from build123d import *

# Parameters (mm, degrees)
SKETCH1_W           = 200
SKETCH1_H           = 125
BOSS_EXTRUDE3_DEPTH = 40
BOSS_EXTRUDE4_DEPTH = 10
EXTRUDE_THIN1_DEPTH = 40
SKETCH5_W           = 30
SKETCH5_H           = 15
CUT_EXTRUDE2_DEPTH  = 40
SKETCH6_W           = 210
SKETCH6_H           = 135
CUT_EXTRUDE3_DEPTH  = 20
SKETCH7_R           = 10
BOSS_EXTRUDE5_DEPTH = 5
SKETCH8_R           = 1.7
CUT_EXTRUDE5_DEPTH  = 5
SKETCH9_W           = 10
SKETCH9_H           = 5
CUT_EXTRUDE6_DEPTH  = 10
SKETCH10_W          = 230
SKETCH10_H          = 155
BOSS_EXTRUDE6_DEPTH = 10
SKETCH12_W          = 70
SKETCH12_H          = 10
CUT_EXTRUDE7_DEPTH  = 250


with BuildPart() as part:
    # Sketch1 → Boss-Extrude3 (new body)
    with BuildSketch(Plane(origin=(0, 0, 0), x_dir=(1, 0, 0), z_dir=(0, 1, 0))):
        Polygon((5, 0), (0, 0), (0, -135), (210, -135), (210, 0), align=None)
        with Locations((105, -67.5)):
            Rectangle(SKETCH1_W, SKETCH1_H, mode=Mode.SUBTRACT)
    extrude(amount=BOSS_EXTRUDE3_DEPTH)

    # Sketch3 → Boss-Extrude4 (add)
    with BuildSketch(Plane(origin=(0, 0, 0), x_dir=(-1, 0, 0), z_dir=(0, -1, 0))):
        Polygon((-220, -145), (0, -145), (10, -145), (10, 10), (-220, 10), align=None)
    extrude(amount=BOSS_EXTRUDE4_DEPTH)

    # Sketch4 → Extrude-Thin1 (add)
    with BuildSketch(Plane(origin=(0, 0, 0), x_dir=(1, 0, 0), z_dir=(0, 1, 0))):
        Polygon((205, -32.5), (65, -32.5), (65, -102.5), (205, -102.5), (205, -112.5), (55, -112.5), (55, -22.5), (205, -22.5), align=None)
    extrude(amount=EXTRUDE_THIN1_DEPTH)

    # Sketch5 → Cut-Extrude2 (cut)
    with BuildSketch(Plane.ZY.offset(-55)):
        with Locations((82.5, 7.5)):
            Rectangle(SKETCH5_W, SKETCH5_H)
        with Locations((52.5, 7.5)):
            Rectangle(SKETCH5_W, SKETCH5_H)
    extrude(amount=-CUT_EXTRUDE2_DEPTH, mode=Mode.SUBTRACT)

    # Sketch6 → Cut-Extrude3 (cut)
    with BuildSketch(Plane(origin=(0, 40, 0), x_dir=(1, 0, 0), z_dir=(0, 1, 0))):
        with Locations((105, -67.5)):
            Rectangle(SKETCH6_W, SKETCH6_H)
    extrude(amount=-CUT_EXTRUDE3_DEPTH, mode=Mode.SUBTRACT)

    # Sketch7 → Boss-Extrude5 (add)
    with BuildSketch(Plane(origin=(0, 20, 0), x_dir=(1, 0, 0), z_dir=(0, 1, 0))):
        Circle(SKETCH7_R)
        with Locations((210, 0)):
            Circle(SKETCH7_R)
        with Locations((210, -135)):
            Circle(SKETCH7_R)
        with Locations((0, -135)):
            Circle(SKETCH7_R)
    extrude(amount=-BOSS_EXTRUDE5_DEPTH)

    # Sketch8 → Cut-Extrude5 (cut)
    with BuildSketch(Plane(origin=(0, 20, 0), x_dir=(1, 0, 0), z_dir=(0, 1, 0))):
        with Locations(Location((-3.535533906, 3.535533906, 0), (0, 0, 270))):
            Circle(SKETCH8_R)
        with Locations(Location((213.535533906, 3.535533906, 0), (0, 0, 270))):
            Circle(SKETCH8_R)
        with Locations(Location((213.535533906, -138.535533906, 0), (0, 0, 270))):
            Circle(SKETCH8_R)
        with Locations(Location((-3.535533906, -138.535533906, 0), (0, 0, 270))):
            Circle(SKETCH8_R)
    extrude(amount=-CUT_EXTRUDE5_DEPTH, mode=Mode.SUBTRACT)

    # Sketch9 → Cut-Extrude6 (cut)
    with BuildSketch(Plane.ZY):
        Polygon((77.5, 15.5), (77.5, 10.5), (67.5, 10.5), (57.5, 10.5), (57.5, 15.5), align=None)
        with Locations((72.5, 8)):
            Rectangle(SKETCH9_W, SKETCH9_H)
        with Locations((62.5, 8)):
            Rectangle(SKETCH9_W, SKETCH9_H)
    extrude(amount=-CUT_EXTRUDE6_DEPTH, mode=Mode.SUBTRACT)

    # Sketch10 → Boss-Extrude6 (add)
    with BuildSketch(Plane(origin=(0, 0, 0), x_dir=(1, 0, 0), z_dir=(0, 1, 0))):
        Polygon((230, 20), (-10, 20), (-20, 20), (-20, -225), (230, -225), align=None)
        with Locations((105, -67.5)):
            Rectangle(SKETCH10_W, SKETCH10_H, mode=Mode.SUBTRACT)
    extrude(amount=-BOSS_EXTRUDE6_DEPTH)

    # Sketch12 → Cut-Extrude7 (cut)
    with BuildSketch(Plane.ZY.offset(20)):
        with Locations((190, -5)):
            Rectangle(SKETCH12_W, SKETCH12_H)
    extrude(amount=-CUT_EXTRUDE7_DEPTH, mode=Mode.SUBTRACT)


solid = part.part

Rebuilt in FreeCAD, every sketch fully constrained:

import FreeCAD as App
import Part
import Sketcher
Q = App.Units.Quantity

doc = App.newDocument("Part")
body = doc.addObject("PartDesign::Body", "Body")

# Sketch on XZ plane
sketch1 = body.newObject("Sketcher::SketchObject", "Sketch")
sketch1.AttachmentSupport = (doc.getObject("XZ_Plane"), [""])
sketch1.MapMode = "FlatFace"
sketch1.addGeometry(Part.LineSegment(App.Vector(0, 0, 0), App.Vector(0, 135, 0)), False)
sketch1.addGeometry(Part.LineSegment(App.Vector(0, 135, 0), App.Vector(210, 135, 0)), False)
sketch1.addGeometry(Part.LineSegment(App.Vector(210, 135, 0), App.Vector(210, 0, 0)), False)
sketch1.addGeometry(Part.LineSegment(App.Vector(210, 0, 0), App.Vector(0, 0, 0)), False)
sketch1.addGeometry(Part.LineSegment(App.Vector(205, 130, 0), App.Vector(5, 130, 0)), False)
sketch1.addGeometry(Part.LineSegment(App.Vector(5, 130, 0), App.Vector(5, 5, 0)), False)
sketch1.addGeometry(Part.LineSegment(App.Vector(5, 5, 0), App.Vector(205, 5, 0)), False)
sketch1.addGeometry(Part.LineSegment(App.Vector(205, 5, 0), App.Vector(205, 130, 0)), False)
sketch1.addConstraint(Sketcher.Constraint("Coincident", 0, 2, 1, 1))
sketch1.addConstraint(Sketcher.Constraint("Coincident", 1, 2, 2, 1))
sketch1.addConstraint(Sketcher.Constraint("Coincident", 2, 2, 3, 1))
sketch1.addConstraint(Sketcher.Constraint("Coincident", 3, 2, 0, 1))
sketch1.addConstraint(Sketcher.Constraint("Coincident", 4, 2, 5, 1))
sketch1.addConstraint(Sketcher.Constraint("Coincident", 5, 2, 6, 1))
sketch1.addConstraint(Sketcher.Constraint("Coincident", 6, 2, 7, 1))
sketch1.addConstraint(Sketcher.Constraint("Coincident", 7, 2, 4, 1))
sketch1.addConstraint(Sketcher.Constraint("Vertical", 0))
sketch1.addConstraint(Sketcher.Constraint("Horizontal", 1))
sketch1.addConstraint(Sketcher.Constraint("Vertical", 2))
sketch1.addConstraint(Sketcher.Constraint("Horizontal", 3))
sketch1.addConstraint(Sketcher.Constraint("Horizontal", 4))
sketch1.addConstraint(Sketcher.Constraint("Vertical", 5))
sketch1.addConstraint(Sketcher.Constraint("Horizontal", 6))
sketch1.addConstraint(Sketcher.Constraint("Vertical", 7))
sketch1.addConstraint(Sketcher.Constraint("Coincident", 3, 2, -1, 1))
sketch1.addConstraint(Sketcher.Constraint("DistanceX", 1, 1, 1, 2, Q("210 mm")))
sketch1.addConstraint(Sketcher.Constraint("DistanceX", 4, 2, 4, 1, Q("200 mm")))
sketch1.addConstraint(Sketcher.Constraint("DistanceY", 0, 1, 0, 2, Q("135 mm")))
sketch1.addConstraint(Sketcher.Constraint("DistanceY", 5, 2, 5, 1, Q("125 mm")))
sketch1.addConstraint(Sketcher.Constraint("DistanceX", -1, 1, 4, 2, Q("5 mm")))
sketch1.addConstraint(Sketcher.Constraint("DistanceY", -1, 1, 4, 2, Q("130 mm")))
pad1 = body.newObject("PartDesign::Pad", "Pad")
pad1.Profile = sketch1
pad1.Length = 40
pad1.Reversed = True

# Sketch on XZ plane
sketch2 = body.newObject("Sketcher::SketchObject", "Sketch001")
sketch2.AttachmentSupport = (doc.getObject("XZ_Plane"), [""])
sketch2.MapMode = "FlatFace"
sketch2.addGeometry(Part.LineSegment(App.Vector(220, 145, 0), App.Vector(-10, 145, 0)), False)
sketch2.addGeometry(Part.LineSegment(App.Vector(-10, 145, 0), App.Vector(-10, -10, 0)), False)
sketch2.addGeometry(Part.LineSegment(App.Vector(-10, -10, 0), App.Vector(220, -10, 0)), False)
sketch2.addGeometry(Part.LineSegment(App.Vector(220, -10, 0), App.Vector(220, 145, 0)), False)
sketch2.addConstraint(Sketcher.Constraint("Coincident", 0, 2, 1, 1))
sketch2.addConstraint(Sketcher.Constraint("Coincident", 1, 2, 2, 1))
sketch2.addConstraint(Sketcher.Constraint("Coincident", 2, 2, 3, 1))
sketch2.addConstraint(Sketcher.Constraint("Coincident", 3, 2, 0, 1))
sketch2.addConstraint(Sketcher.Constraint("Horizontal", 0))
sketch2.addConstraint(Sketcher.Constraint("Vertical", 1))
sketch2.addConstraint(Sketcher.Constraint("Horizontal", 2))
sketch2.addConstraint(Sketcher.Constraint("Vertical", 3))
sketch2.addConstraint(Sketcher.Constraint("DistanceX", 0, 2, 0, 1, Q("230 mm")))
sketch2.addConstraint(Sketcher.Constraint("DistanceY", 1, 2, 1, 1, Q("155 mm")))
sketch2.addConstraint(Sketcher.Constraint("DistanceX", 0, 2, -1, 1, Q("10 mm")))
sketch2.addConstraint(Sketcher.Constraint("DistanceY", -1, 1, 0, 2, Q("145 mm")))
pad2 = body.newObject("PartDesign::Pad", "Pad001")
pad2.Profile = sketch2
pad2.Length = 10

# Sketch on XZ plane
sketch3 = body.newObject("Sketcher::SketchObject", "Sketch002")
sketch3.AttachmentSupport = (doc.getObject("XZ_Plane"), [""])
sketch3.MapMode = "FlatFace"
sketch3.addGeometry(Part.LineSegment(App.Vector(65, 32, 0), App.Vector(205, 32, 0)), False)
sketch3.addGeometry(Part.LineSegment(App.Vector(205, 32, 0), App.Vector(205, 22, 0)), False)
sketch3.addGeometry(Part.LineSegment(App.Vector(205, 22, 0), App.Vector(55, 22, 0)), False)
sketch3.addGeometry(Part.LineSegment(App.Vector(55, 22, 0), App.Vector(55, 112, 0)), False)
sketch3.addGeometry(Part.LineSegment(App.Vector(55, 112, 0), App.Vector(205, 112, 0)), False)
sketch3.addGeometry(Part.LineSegment(App.Vector(205, 112, 0), App.Vector(205, 102, 0)), False)
sketch3.addGeometry(Part.LineSegment(App.Vector(205, 102, 0), App.Vector(65, 102, 0)), False)
sketch3.addGeometry(Part.LineSegment(App.Vector(65, 102, 0), App.Vector(65, 32, 0)), False)
sketch3.addConstraint(Sketcher.Constraint("Coincident", 0, 2, 1, 1))
sketch3.addConstraint(Sketcher.Constraint("Coincident", 1, 2, 2, 1))
sketch3.addConstraint(Sketcher.Constraint("Coincident", 2, 2, 3, 1))
sketch3.addConstraint(Sketcher.Constraint("Coincident", 3, 2, 4, 1))
sketch3.addConstraint(Sketcher.Constraint("Coincident", 4, 2, 5, 1))
sketch3.addConstraint(Sketcher.Constraint("Coincident", 5, 2, 6, 1))
sketch3.addConstraint(Sketcher.Constraint("Coincident", 6, 2, 7, 1))
sketch3.addConstraint(Sketcher.Constraint("Coincident", 7, 2, 0, 1))
sketch3.addConstraint(Sketcher.Constraint("Horizontal", 0))
sketch3.addConstraint(Sketcher.Constraint("Vertical", 1))
sketch3.addConstraint(Sketcher.Constraint("Horizontal", 2))
sketch3.addConstraint(Sketcher.Constraint("Vertical", 3))
sketch3.addConstraint(Sketcher.Constraint("Horizontal", 4))
sketch3.addConstraint(Sketcher.Constraint("Vertical", 5))
sketch3.addConstraint(Sketcher.Constraint("Horizontal", 6))
sketch3.addConstraint(Sketcher.Constraint("Vertical", 7))
sketch3.addConstraint(Sketcher.Constraint("Vertical", 1, 2, 4, 2))
sketch3.addConstraint(Sketcher.Constraint("Equal", 1, 5))
sketch3.addConstraint(Sketcher.Constraint("DistanceX", 0, 1, 0, 2, Q("140 mm")))
sketch3.addConstraint(Sketcher.Constraint("DistanceX", 2, 2, 2, 1, Q("150 mm")))
sketch3.addConstraint(Sketcher.Constraint("DistanceY", 1, 2, 1, 1, Q("10 mm")))
sketch3.addConstraint(Sketcher.Constraint("DistanceY", 3, 1, 3, 2, Q("90 mm")))
sketch3.addConstraint(Sketcher.Constraint("DistanceX", -1, 1, 0, 2, Q("205 mm")))
sketch3.addConstraint(Sketcher.Constraint("DistanceY", -1, 1, 0, 2, Q("32.5 mm")))
pad3 = body.newObject("PartDesign::Pad", "Pad002")
pad3.Profile = sketch3
pad3.Length = 40
pad3.Reversed = True

# Sketch on YZ plane
sketch4 = body.newObject("Sketcher::SketchObject", "Sketch003")
sketch4.AttachmentSupport = (doc.getObject("YZ_Plane"), [""])
sketch4.MapMode = "FlatFace"
sketch4.AttachmentOffset = App.Placement(App.Vector(0, 0, 55), App.Rotation())
sketch4.addGeometry(Part.LineSegment(App.Vector(0, 98, 0), App.Vector(15, 98, 0)), False)
sketch4.addGeometry(Part.LineSegment(App.Vector(15, 98, 0), App.Vector(15, 38, 0)), False)
sketch4.addGeometry(Part.LineSegment(App.Vector(15, 38, 0), App.Vector(0, 38, 0)), False)
sketch4.addGeometry(Part.LineSegment(App.Vector(0, 38, 0), App.Vector(0, 98, 0)), False)
sketch4.addConstraint(Sketcher.Constraint("Coincident", 0, 2, 1, 1))
sketch4.addConstraint(Sketcher.Constraint("Coincident", 1, 2, 2, 1))
sketch4.addConstraint(Sketcher.Constraint("Coincident", 2, 2, 3, 1))
sketch4.addConstraint(Sketcher.Constraint("Coincident", 3, 2, 0, 1))
sketch4.addConstraint(Sketcher.Constraint("Horizontal", 0))
sketch4.addConstraint(Sketcher.Constraint("Vertical", 1))
sketch4.addConstraint(Sketcher.Constraint("Horizontal", 2))
sketch4.addConstraint(Sketcher.Constraint("Vertical", 3))
sketch4.addConstraint(Sketcher.Constraint("PointOnObject", 2, 2, -2))
sketch4.addConstraint(Sketcher.Constraint("DistanceX", 0, 1, 0, 2, Q("15 mm")))
sketch4.addConstraint(Sketcher.Constraint("DistanceY", 1, 2, 1, 1, Q("60 mm")))
sketch4.addConstraint(Sketcher.Constraint("DistanceY", -1, 1, 0, 2, Q("97.5 mm")))
pocket1 = body.newObject("PartDesign::Pocket", "Pocket")
pocket1.Profile = sketch4
pocket1.Length = 40
pocket1.Reversed = True

# Sketch on XZ plane
sketch5 = body.newObject("Sketcher::SketchObject", "Sketch004")
sketch5.AttachmentSupport = (doc.getObject("XZ_Plane"), [""])
sketch5.MapMode = "FlatFace"
sketch5.AttachmentOffset = App.Placement(App.Vector(0, 0, -40), App.Rotation())
sketch5.addGeometry(Part.LineSegment(App.Vector(0, 0, 0), App.Vector(0, 135, 0)), False)
sketch5.addGeometry(Part.LineSegment(App.Vector(0, 135, 0), App.Vector(210, 135, 0)), False)
sketch5.addGeometry(Part.LineSegment(App.Vector(210, 135, 0), App.Vector(210, 0, 0)), False)
sketch5.addGeometry(Part.LineSegment(App.Vector(210, 0, 0), App.Vector(0, 0, 0)), False)
sketch5.addConstraint(Sketcher.Constraint("Coincident", 0, 2, 1, 1))
sketch5.addConstraint(Sketcher.Constraint("Coincident", 1, 2, 2, 1))
sketch5.addConstraint(Sketcher.Constraint("Coincident", 2, 2, 3, 1))
sketch5.addConstraint(Sketcher.Constraint("Coincident", 3, 2, 0, 1))
sketch5.addConstraint(Sketcher.Constraint("Vertical", 0))
sketch5.addConstraint(Sketcher.Constraint("Horizontal", 1))
sketch5.addConstraint(Sketcher.Constraint("Vertical", 2))
sketch5.addConstraint(Sketcher.Constraint("Horizontal", 3))
sketch5.addConstraint(Sketcher.Constraint("Coincident", 3, 2, -1, 1))
sketch5.addConstraint(Sketcher.Constraint("DistanceX", 1, 1, 1, 2, Q("210 mm")))
sketch5.addConstraint(Sketcher.Constraint("DistanceY", 0, 1, 0, 2, Q("135 mm")))
pocket2 = body.newObject("PartDesign::Pocket", "Pocket001")
pocket2.Profile = sketch5
pocket2.Length = 20
pocket2.Reversed = True

# Sketch on XZ plane
sketch6 = body.newObject("Sketcher::SketchObject", "Sketch005")
sketch6.AttachmentSupport = (doc.getObject("XZ_Plane"), [""])
sketch6.MapMode = "FlatFace"
sketch6.AttachmentOffset = App.Placement(App.Vector(0, 0, -20), App.Rotation())
sketch6.addGeometry(Part.Circle(App.Vector(0, 0, 0), App.Vector(0, 0, 1), 10), False)
sketch6.addGeometry(Part.Circle(App.Vector(210, 0, 0), App.Vector(0, 0, 1), 10), False)
sketch6.addGeometry(Part.Circle(App.Vector(210, 135, 0), App.Vector(0, 0, 1), 10), False)
sketch6.addGeometry(Part.Circle(App.Vector(0, 135, 0), App.Vector(0, 0, 1), 10), False)
sketch6.addConstraint(Sketcher.Constraint("Coincident", 0, 3, -1, 1))
sketch6.addConstraint(Sketcher.Constraint("Equal", 0, 1))
sketch6.addConstraint(Sketcher.Constraint("Equal", 1, 2))
sketch6.addConstraint(Sketcher.Constraint("Equal", 2, 3))
sketch6.addConstraint(Sketcher.Constraint("PointOnObject", 1, 3, -1))
sketch6.addConstraint(Sketcher.Constraint("PointOnObject", 3, 3, -2))
sketch6.addConstraint(Sketcher.Constraint("Horizontal", 2, 3, 3, 3))
sketch6.addConstraint(Sketcher.Constraint("Vertical", 1, 3, 2, 3))
sketch6.addConstraint(Sketcher.Constraint("Diameter", 0, Q("20 mm")))
sketch6.addConstraint(Sketcher.Constraint("DistanceX", -1, 1, 1, 3, Q("210 mm")))
sketch6.addConstraint(Sketcher.Constraint("DistanceY", -1, 1, 2, 3, Q("135 mm")))
pad4 = body.newObject("PartDesign::Pad", "Pad003")
pad4.Profile = sketch6
pad4.Length = 5

# Sketch on XZ plane
sketch7 = body.newObject("Sketcher::SketchObject", "Sketch006")
sketch7.AttachmentSupport = (doc.getObject("XZ_Plane"), [""])
sketch7.MapMode = "FlatFace"
sketch7.AttachmentOffset = App.Placement(App.Vector(0, 0, -20), App.Rotation())
sketch7.addGeometry(Part.Circle(App.Vector(-3.5, -3.5, 0), App.Vector(0, 0, 1), 1.7), False)
sketch7.addGeometry(Part.Circle(App.Vector(213.5, -3.5, 0), App.Vector(0, 0, 1), 1.7), False)
sketch7.addGeometry(Part.Circle(App.Vector(213.5, 138.5, 0), App.Vector(0, 0, 1), 1.7), False)
sketch7.addGeometry(Part.Circle(App.Vector(-3.5, 138.5, 0), App.Vector(0, 0, 1), 1.7), False)
sketch7.addConstraint(Sketcher.Constraint("Equal", 0, 1))
sketch7.addConstraint(Sketcher.Constraint("Equal", 1, 2))
sketch7.addConstraint(Sketcher.Constraint("Equal", 2, 3))
sketch7.addConstraint(Sketcher.Constraint("Horizontal", 0, 3, 1, 3))
sketch7.addConstraint(Sketcher.Constraint("Horizontal", 2, 3, 3, 3))
sketch7.addConstraint(Sketcher.Constraint("Vertical", 1, 3, 2, 3))
sketch7.addConstraint(Sketcher.Constraint("Vertical", 0, 3, 3, 3))
sketch7.addConstraint(Sketcher.Constraint("Diameter", 0, Q("3.4 mm")))
sketch7.addConstraint(Sketcher.Constraint("DistanceX", 0, 3, -1, 1, Q("3.535534 mm")))
sketch7.addConstraint(Sketcher.Constraint("DistanceY", 0, 3, -1, 1, Q("3.535534 mm")))
sketch7.addConstraint(Sketcher.Constraint("DistanceX", -1, 1, 1, 3, Q("213.535534 mm")))
sketch7.addConstraint(Sketcher.Constraint("DistanceY", -1, 1, 2, 3, Q("138.535534 mm")))
pocket3 = body.newObject("PartDesign::Pocket", "Pocket002")
pocket3.Profile = sketch7
pocket3.Length = 5
pocket3.Reversed = True

# Sketch on YZ plane
sketch8 = body.newObject("Sketcher::SketchObject", "Sketch007")
sketch8.AttachmentSupport = (doc.getObject("YZ_Plane"), [""])
sketch8.MapMode = "FlatFace"
sketch8.addGeometry(Part.LineSegment(App.Vector(6, 78, 0), App.Vector(16, 78, 0)), False)
sketch8.addGeometry(Part.LineSegment(App.Vector(16, 78, 0), App.Vector(16, 58, 0)), False)
sketch8.addGeometry(Part.LineSegment(App.Vector(16, 58, 0), App.Vector(6, 58, 0)), False)
sketch8.addGeometry(Part.LineSegment(App.Vector(6, 58, 0), App.Vector(6, 78, 0)), False)
sketch8.addConstraint(Sketcher.Constraint("Coincident", 0, 2, 1, 1))
sketch8.addConstraint(Sketcher.Constraint("Coincident", 1, 2, 2, 1))
sketch8.addConstraint(Sketcher.Constraint("Coincident", 2, 2, 3, 1))
sketch8.addConstraint(Sketcher.Constraint("Coincident", 3, 2, 0, 1))
sketch8.addConstraint(Sketcher.Constraint("Horizontal", 0))
sketch8.addConstraint(Sketcher.Constraint("Vertical", 1))
sketch8.addConstraint(Sketcher.Constraint("Horizontal", 2))
sketch8.addConstraint(Sketcher.Constraint("Vertical", 3))
sketch8.addConstraint(Sketcher.Constraint("DistanceX", 0, 1, 0, 2, Q("10 mm")))
sketch8.addConstraint(Sketcher.Constraint("DistanceY", 1, 2, 1, 1, Q("20 mm")))
sketch8.addConstraint(Sketcher.Constraint("DistanceX", -1, 1, 0, 2, Q("15.5 mm")))
sketch8.addConstraint(Sketcher.Constraint("DistanceY", -1, 1, 0, 2, Q("77.5 mm")))
pocket4 = body.newObject("PartDesign::Pocket", "Pocket003")
pocket4.Profile = sketch8
pocket4.Length = 10
pocket4.Reversed = True

# Sketch on XZ plane
sketch9 = body.newObject("Sketcher::SketchObject", "Sketch008")
sketch9.AttachmentSupport = (doc.getObject("XZ_Plane"), [""])
sketch9.MapMode = "FlatFace"
sketch9.addGeometry(Part.LineSegment(App.Vector(230, -20, 0), App.Vector(-20, -20, 0)), False)
sketch9.addGeometry(Part.LineSegment(App.Vector(-20, -20, 0), App.Vector(-20, 225, 0)), False)
sketch9.addGeometry(Part.LineSegment(App.Vector(-20, 225, 0), App.Vector(230, 225, 0)), False)
sketch9.addGeometry(Part.LineSegment(App.Vector(230, 225, 0), App.Vector(230, -20, 0)), False)
sketch9.addGeometry(Part.LineSegment(App.Vector(220, 145, 0), App.Vector(-10, 145, 0)), False)
sketch9.addGeometry(Part.LineSegment(App.Vector(-10, 145, 0), App.Vector(-10, -10, 0)), False)
sketch9.addGeometry(Part.LineSegment(App.Vector(-10, -10, 0), App.Vector(220, -10, 0)), False)
sketch9.addGeometry(Part.LineSegment(App.Vector(220, -10, 0), App.Vector(220, 145, 0)), False)
sketch9.addConstraint(Sketcher.Constraint("Coincident", 0, 2, 1, 1))
sketch9.addConstraint(Sketcher.Constraint("Coincident", 1, 2, 2, 1))
sketch9.addConstraint(Sketcher.Constraint("Coincident", 2, 2, 3, 1))
sketch9.addConstraint(Sketcher.Constraint("Coincident", 3, 2, 0, 1))
sketch9.addConstraint(Sketcher.Constraint("Coincident", 4, 2, 5, 1))
sketch9.addConstraint(Sketcher.Constraint("Coincident", 5, 2, 6, 1))
sketch9.addConstraint(Sketcher.Constraint("Coincident", 6, 2, 7, 1))
sketch9.addConstraint(Sketcher.Constraint("Coincident", 7, 2, 4, 1))
sketch9.addConstraint(Sketcher.Constraint("Horizontal", 0))
sketch9.addConstraint(Sketcher.Constraint("Vertical", 1))
sketch9.addConstraint(Sketcher.Constraint("Horizontal", 2))
sketch9.addConstraint(Sketcher.Constraint("Vertical", 3))
sketch9.addConstraint(Sketcher.Constraint("Horizontal", 4))
sketch9.addConstraint(Sketcher.Constraint("Vertical", 5))
sketch9.addConstraint(Sketcher.Constraint("Horizontal", 6))
sketch9.addConstraint(Sketcher.Constraint("Vertical", 7))
sketch9.addConstraint(Sketcher.Constraint("DistanceX", 0, 2, 0, 1, Q("250 mm")))
sketch9.addConstraint(Sketcher.Constraint("DistanceX", 4, 2, 4, 1, Q("230 mm")))
sketch9.addConstraint(Sketcher.Constraint("DistanceY", 1, 1, 1, 2, Q("245 mm")))
sketch9.addConstraint(Sketcher.Constraint("DistanceY", 5, 2, 5, 1, Q("155 mm")))
sketch9.addConstraint(Sketcher.Constraint("DistanceX", 0, 2, -1, 1, Q("20 mm")))
sketch9.addConstraint(Sketcher.Constraint("DistanceY", 0, 2, -1, 1, Q("20 mm")))
sketch9.addConstraint(Sketcher.Constraint("DistanceX", 4, 2, -1, 1, Q("10 mm")))
sketch9.addConstraint(Sketcher.Constraint("DistanceY", -1, 1, 4, 2, Q("145 mm")))
pad5 = body.newObject("PartDesign::Pad", "Pad004")
pad5.Profile = sketch9
pad5.Length = 10

# Sketch on YZ plane
sketch10 = body.newObject("Sketcher::SketchObject", "Sketch009")
sketch10.AttachmentSupport = (doc.getObject("YZ_Plane"), [""])
sketch10.MapMode = "FlatFace"
sketch10.AttachmentOffset = App.Placement(App.Vector(0, 0, -20), App.Rotation())
sketch10.addGeometry(Part.LineSegment(App.Vector(0, 155, 0), App.Vector(-10, 155, 0)), False)
sketch10.addGeometry(Part.LineSegment(App.Vector(-10, 155, 0), App.Vector(-10, 225, 0)), False)
sketch10.addGeometry(Part.LineSegment(App.Vector(-10, 225, 0), App.Vector(0, 225, 0)), False)
sketch10.addGeometry(Part.LineSegment(App.Vector(0, 225, 0), App.Vector(0, 155, 0)), False)
sketch10.addConstraint(Sketcher.Constraint("Coincident", 0, 2, 1, 1))
sketch10.addConstraint(Sketcher.Constraint("Coincident", 1, 2, 2, 1))
sketch10.addConstraint(Sketcher.Constraint("Coincident", 2, 2, 3, 1))
sketch10.addConstraint(Sketcher.Constraint("Coincident", 3, 2, 0, 1))
sketch10.addConstraint(Sketcher.Constraint("Horizontal", 0))
sketch10.addConstraint(Sketcher.Constraint("Vertical", 1))
sketch10.addConstraint(Sketcher.Constraint("Horizontal", 2))
sketch10.addConstraint(Sketcher.Constraint("Vertical", 3))
sketch10.addConstraint(Sketcher.Constraint("PointOnObject", 2, 2, -2))
sketch10.addConstraint(Sketcher.Constraint("DistanceX", 0, 2, 0, 1, Q("10 mm")))
sketch10.addConstraint(Sketcher.Constraint("DistanceY", 1, 1, 1, 2, Q("70 mm")))
sketch10.addConstraint(Sketcher.Constraint("DistanceY", -1, 1, 0, 2, Q("155 mm")))
pocket5 = body.newObject("PartDesign::Pocket", "Pocket004")
pocket5.Profile = sketch10
pocket5.Length = 250
pocket5.Reversed = True

doc.recompute()
